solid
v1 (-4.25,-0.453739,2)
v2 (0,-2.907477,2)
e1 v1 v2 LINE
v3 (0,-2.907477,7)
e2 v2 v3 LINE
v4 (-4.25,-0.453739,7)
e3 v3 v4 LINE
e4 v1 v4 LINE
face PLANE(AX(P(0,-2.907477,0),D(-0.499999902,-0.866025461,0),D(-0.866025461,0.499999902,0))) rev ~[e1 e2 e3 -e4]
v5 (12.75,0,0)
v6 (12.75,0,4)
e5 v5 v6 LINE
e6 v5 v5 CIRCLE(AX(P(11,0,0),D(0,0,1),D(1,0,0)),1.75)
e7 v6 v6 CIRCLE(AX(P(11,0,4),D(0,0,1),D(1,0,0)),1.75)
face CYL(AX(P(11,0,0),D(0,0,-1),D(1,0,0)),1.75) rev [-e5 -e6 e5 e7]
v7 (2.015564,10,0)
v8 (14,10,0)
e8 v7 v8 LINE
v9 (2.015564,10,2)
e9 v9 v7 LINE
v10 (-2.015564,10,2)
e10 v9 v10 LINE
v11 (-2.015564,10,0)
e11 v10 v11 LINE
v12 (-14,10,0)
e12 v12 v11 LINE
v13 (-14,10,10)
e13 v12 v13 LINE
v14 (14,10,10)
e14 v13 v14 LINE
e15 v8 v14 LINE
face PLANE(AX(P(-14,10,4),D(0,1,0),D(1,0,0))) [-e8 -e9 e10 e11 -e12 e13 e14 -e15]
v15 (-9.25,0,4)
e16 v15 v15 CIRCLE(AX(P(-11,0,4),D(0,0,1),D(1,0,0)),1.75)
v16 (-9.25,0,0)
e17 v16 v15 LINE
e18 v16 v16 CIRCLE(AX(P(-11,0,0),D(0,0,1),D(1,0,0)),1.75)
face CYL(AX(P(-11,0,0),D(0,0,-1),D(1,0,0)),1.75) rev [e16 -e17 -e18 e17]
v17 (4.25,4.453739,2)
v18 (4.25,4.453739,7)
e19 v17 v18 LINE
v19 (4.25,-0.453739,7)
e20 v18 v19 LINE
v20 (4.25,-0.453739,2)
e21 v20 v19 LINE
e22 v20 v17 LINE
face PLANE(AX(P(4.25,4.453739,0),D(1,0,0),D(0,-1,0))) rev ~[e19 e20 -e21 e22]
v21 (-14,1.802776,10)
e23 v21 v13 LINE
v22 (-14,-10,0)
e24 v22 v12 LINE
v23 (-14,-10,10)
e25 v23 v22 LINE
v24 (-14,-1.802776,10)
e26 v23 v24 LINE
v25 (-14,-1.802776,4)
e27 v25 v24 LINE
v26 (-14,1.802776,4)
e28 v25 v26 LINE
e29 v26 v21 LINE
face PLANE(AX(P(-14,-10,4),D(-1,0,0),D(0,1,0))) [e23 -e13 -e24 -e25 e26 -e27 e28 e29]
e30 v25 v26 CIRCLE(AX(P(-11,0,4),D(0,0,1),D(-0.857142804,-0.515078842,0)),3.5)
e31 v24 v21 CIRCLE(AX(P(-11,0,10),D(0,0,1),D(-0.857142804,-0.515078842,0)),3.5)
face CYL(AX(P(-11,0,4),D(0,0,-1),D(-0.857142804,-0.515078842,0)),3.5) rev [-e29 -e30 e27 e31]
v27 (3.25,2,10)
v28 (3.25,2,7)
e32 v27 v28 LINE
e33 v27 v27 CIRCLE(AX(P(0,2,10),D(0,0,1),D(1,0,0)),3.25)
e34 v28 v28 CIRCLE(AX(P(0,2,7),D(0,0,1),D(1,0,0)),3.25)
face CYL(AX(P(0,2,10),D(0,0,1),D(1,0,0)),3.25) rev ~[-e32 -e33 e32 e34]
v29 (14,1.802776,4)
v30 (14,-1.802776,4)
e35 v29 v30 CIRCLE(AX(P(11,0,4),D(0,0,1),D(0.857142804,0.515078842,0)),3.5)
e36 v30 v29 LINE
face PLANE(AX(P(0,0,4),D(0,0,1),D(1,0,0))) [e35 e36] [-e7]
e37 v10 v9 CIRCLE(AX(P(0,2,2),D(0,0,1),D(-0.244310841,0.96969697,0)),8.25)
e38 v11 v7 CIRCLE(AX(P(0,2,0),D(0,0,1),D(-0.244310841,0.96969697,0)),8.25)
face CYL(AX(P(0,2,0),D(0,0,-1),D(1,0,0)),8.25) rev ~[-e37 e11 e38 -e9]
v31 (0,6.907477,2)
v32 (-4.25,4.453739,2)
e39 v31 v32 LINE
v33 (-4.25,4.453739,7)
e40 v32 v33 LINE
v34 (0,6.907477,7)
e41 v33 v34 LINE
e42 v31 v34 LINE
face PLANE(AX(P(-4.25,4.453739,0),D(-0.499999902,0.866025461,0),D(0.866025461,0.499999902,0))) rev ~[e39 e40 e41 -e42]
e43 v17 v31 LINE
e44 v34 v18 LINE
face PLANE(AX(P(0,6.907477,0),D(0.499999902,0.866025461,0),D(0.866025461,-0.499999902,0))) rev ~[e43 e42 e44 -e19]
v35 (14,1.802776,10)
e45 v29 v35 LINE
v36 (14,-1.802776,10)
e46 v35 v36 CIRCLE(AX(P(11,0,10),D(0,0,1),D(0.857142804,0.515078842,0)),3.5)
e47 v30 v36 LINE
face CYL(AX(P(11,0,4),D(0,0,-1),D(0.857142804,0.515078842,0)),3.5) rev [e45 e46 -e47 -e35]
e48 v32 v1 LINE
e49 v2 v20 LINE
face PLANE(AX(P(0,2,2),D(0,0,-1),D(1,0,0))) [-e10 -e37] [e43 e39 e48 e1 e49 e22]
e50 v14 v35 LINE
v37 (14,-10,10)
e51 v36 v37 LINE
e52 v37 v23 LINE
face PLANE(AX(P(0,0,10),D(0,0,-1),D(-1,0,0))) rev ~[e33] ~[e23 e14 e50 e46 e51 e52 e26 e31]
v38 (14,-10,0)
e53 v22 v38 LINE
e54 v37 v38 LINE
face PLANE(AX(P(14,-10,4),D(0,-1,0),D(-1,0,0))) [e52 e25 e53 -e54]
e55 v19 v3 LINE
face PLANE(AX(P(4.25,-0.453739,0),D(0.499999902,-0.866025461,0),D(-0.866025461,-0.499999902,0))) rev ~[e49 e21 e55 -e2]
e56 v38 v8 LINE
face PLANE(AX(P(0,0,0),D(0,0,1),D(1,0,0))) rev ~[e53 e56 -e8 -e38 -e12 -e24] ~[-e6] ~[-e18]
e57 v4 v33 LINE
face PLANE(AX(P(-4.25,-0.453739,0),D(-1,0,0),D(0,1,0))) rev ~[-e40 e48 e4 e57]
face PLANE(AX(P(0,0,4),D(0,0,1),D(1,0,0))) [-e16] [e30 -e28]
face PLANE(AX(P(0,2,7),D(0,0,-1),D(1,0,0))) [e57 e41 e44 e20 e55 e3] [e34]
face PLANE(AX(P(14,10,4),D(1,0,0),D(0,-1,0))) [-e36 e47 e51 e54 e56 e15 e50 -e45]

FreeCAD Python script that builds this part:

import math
import FreeCAD as App
import Part
import Sketcher
from FreeCAD import Vector
Q = App.Units.Quantity


def add_polygon(sketch, points):
    """Adds a closed chain of lines whose ends are joined by coincident constraints."""
    first, n = sketch.GeometryCount, len(points)
    for a, b in zip(points, points[1:] + points[:1]):
        sketch.addGeometry(Part.LineSegment(App.Vector(*a, 0), App.Vector(*b, 0)), False)
    for i in range(n):
        sketch.addConstraint(Sketcher.Constraint("Coincident", first + i, 2, first + (i + 1) % n, 1))

doc = App.newDocument("Part")
params = doc.addObject("Spreadsheet::Sheet", "Params")
for row, (alias, value) in enumerate([
    ("sketch1_diameter", "3.5 mm"),
    ("sketch1_width", "28 mm"),
    ("sketch1_height", "20 mm"),
    ("pad1_length", "4 mm"),
    ("sketch2_radius", "3.5 mm"),
    ("sketch2_width", "28 mm"),
    ("pad2_length", "6 mm"),
    ("sketch3_diameter", "6.5 mm"),
    ("pocket1_length", "10 mm"),
    ("pocket2_length", "7 mm"),
    ("sketch5_diameter", "16.5 mm"),
    ("pocket3_length", "2 mm"),
], start=1):
    params.set(f"A{row}", alias)
    params.set(f"B{row}", "=" + value)
    params.setAlias(f"B{row}", alias)

body = doc.addObject("PartDesign::Body", "Body")

sketch1 = body.newObject("Sketcher::SketchObject", "Sketch")
sketch1.AttachmentSupport = (doc.getObject("XY_Plane"), [""])
sketch1.MapMode = "FlatFace"
add_polygon(sketch1, [(-14, 10), (-14, -10), (14, -10), (14, 10)])
sketch1.addGeometry(Part.Circle(Vector(-11, 0, 0), Vector(0, 0, 1), 1.8), False)
sketch1.addGeometry(Part.Circle(Vector(11, 0, 0), Vector(0, 0, 1), 1.8), False)
sketch1.addConstraint(Sketcher.Constraint("Vertical", 0))
sketch1.addConstraint(Sketcher.Constraint("Horizontal", 1))
sketch1.addConstraint(Sketcher.Constraint("Vertical", 2))
sketch1.addConstraint(Sketcher.Constraint("Horizontal", 3))
sketch1.addConstraint(Sketcher.Constraint("Equal", 4, 5))
sketch1.addConstraint(Sketcher.Constraint("Symmetric", 4, 3, 5, 3, -1, 1))
sketch1.addConstraint(Sketcher.Constraint("Symmetric", 0, 2, 2, 2, -1, 1))
sketch1.addConstraint(Sketcher.Constraint("PointOnObject", 4, 3, -1))
sketch1.addConstraint(Sketcher.Constraint("Diameter", 4, 3.5))
sketch1.addConstraint(Sketcher.Constraint("DistanceX", 1, 1, 1, 2, 28.0))
sketch1.addConstraint(Sketcher.Constraint("DistanceY", 0, 2, 0, 1, 20.0))
sketch1.addConstraint(Sketcher.Constraint("DistanceX", 4, 3, -1, 1, 11.0))
sketch1.setExpression("Constraints[12]", "Params.sketch1_diameter")
sketch1.setExpression("Constraints[13]", "Params.sketch1_width")
sketch1.setExpression("Constraints[14]", "Params.sketch1_height")
pad1 = body.newObject("PartDesign::Pad", "Pad")
pad1.Profile = sketch1
pad1.setExpression("Length", "Params.pad1_length")

sketch2 = body.newObject("Sketcher::SketchObject", "Sketch001")
sketch2.AttachmentSupport = (doc.getObject("XY_Plane"), [""])
sketch2.MapMode = "FlatFace"
sketch2.AttachmentOffset = App.Placement(Vector(0, 0, 4), App.Rotation())
sketch2.addGeometry(Part.ArcOfCircle(Part.Circle(Vector(11, 0, 0), Vector(0, 0, 1), 3.5), math.radians(31), math.radians(329)), False)
sketch2.addGeometry(Part.LineSegment(Vector(14, 1.8, 0), Vector(14, 10, 0)), False)
sketch2.addGeometry(Part.LineSegment(Vector(14, 10, 0), Vector(-14, 10, 0)), False)
sketch2.addGeometry(Part.LineSegment(Vector(-14, 10, 0), Vector(-14, 1.8, 0)), False)
sketch2.addGeometry(Part.ArcOfCircle(Part.Circle(Vector(-11, 0, 0), Vector(0, 0, 1), 3.5), math.radians(-149), math.radians(149)), False)
sketch2.addGeometry(Part.LineSegment(Vector(-14, -1.8, 0), Vector(-14, -10, 0)), False)
sketch2.addGeometry(Part.LineSegment(Vector(-14, -10, 0), Vector(14, -10, 0)), False)
sketch2.addGeometry(Part.LineSegment(Vector(14, -10, 0), Vector(14, -1.8, 0)), False)
sketch2.addConstraint(Sketcher.Constraint("Coincident", 0, 1, 1, 1))
sketch2.addConstraint(Sketcher.Constraint("Coincident", 1, 2, 2, 1))
sketch2.addConstraint(Sketcher.Constraint("Coincident", 2, 2, 3, 1))
sketch2.addConstraint(Sketcher.Constraint("Coincident", 3, 2, 4, 2))
sketch2.addConstraint(Sketcher.Constraint("Coincident", 4, 1, 5, 1))
sketch2.addConstraint(Sketcher.Constraint("Coincident", 5, 2, 6, 1))
sketch2.addConstraint(Sketcher.Constraint("Coincident", 6, 2, 7, 1))
sketch2.addConstraint(Sketcher.Constraint("Coincident", 7, 2, 0, 2))
sketch2.addConstraint(Sketcher.Constraint("Vertical", 1))
sketch2.addConstraint(Sketcher.Constraint("Horizontal", 2))
sketch2.addConstraint(Sketcher.Constraint("Vertical", 3))
sketch2.addConstraint(Sketcher.Constraint("Vertical", 5))
sketch2.addConstraint(Sketcher.Constraint("Horizontal", 6))
sketch2.addConstraint(Sketcher.Constraint("Vertical", 7))
sketch2.addConstraint(Sketcher.Constraint("Equal", 0, 4))
sketch2.addConstraint(Sketcher.Constraint("Symmetric", 0, 3, 4, 3, -1, 1))
sketch2.addConstraint(Sketcher.Constraint("Symmetric", 1, 2, 5, 2, -1, 1))
sketch2.addConstraint(Sketcher.Constraint("Symmetric", 0, 1, 3, 2, -2))
sketch2.addConstraint(Sketcher.Constraint("Horizontal", 4, 1, 7, 2))
sketch2.addConstraint(Sketcher.Constraint("Radius", 0, 3.5))
sketch2.addConstraint(Sketcher.Constraint("DistanceX", 2, 2, 2, 1, 28.0))
sketch2.addConstraint(Sketcher.Constraint("DistanceX", -1, 1, 0, 3, 11.0))
sketch2.addConstraint(Sketcher.Constraint("DistanceY", -1, 1, 1, 2, 10.0))
sketch2.setExpression("Constraints[19]", "Params.sketch2_radius")
sketch2.setExpression("Constraints[20]", "Params.sketch2_width")
pad2 = body.newObject("PartDesign::Pad", "Pad001")
pad2.Profile = sketch2
pad2.setExpression("Length", "Params.pad2_length")

sketch3 = body.newObject("Sketcher::SketchObject", "Sketch002")
sketch3.AttachmentSupport = (doc.getObject("XY_Plane"), [""])
sketch3.MapMode = "FlatFace"
sketch3.AttachmentOffset = App.Placement(Vector(0, 0, 10), App.Rotation())
sketch3.addGeometry(Part.Circle(Vector(0, 2, 0), Vector(0, 0, 1), 3.2), False)
sketch3.addConstraint(Sketcher.Constraint("PointOnObject", 0, 3, -2))
sketch3.addConstraint(Sketcher.Constraint("Diameter", 0, 6.5))
sketch3.addConstraint(Sketcher.Constraint("DistanceY", -1, 1, 0, 3, 2.0))
sketch3.setExpression("Constraints[1]", "Params.sketch3_diameter")
pocket1 = body.newObject("PartDesign::Pocket", "Pocket")
pocket1.Profile = sketch3
pocket1.setExpression("Length", "Params.pocket1_length")

sketch4 = body.newObject("Sketcher::SketchObject", "Sketch003")
sketch4.AttachmentSupport = (doc.getObject("XY_Plane"), [""])
sketch4.MapMode = "FlatFace"
add_polygon(sketch4, [(4.2, 4.5), (4.2, -0.5), (0, -2.9), (-4.2, -0.5), (-4.2, 4.5), (0, 6.9)])
sketch4.addConstraint(Sketcher.Constraint("Vertical", 0))
sketch4.addConstraint(Sketcher.Constraint("Vertical", 3))
sketch4.addConstraint(Sketcher.Constraint("Symmetric", 0, 2, 2, 2, -2))
sketch4.addConstraint(Sketcher.Constraint("PointOnObject", 1, 2, -2))
sketch4.addConstraint(Sketcher.Constraint("PointOnObject", 4, 2, -2))
sketch4.addConstraint(Sketcher.Constraint("Parallel", 1, 4))
sketch4.addConstraint(Sketcher.Constraint("Parallel", 2, 5))
sketch4.addConstraint(Sketcher.Constraint("Angle", 1, Q("-150.000007 deg")))
sketch4.addConstraint(Sketcher.Constraint("DistanceX", 2, 2, 0, 2, 8.5))
sketch4.addConstraint(Sketcher.Constraint("DistanceY", 0, 2, 0, 1, 4.907478))
sketch4.addConstraint(Sketcher.Constraint("DistanceY", 0, 2, -1, 1, 0.453739))
pocket2 = body.newObject("PartDesign::Pocket", "Pocket001")
pocket2.Profile = sketch4
pocket2.setExpression("Length", "Params.pocket2_length")
pocket2.Reversed = True

sketch5 = body.newObject("Sketcher::SketchObject", "Sketch004")
sketch5.AttachmentSupport = (doc.getObject("XY_Plane"), [""])
sketch5.MapMode = "FlatFace"
sketch5.addGeometry(Part.Circle(Vector(0, 2, 0), Vector(0, 0, 1), 8), False)
sketch5.addConstraint(Sketcher.Constraint("PointOnObject", 0, 3, -2))
sketch5.addConstraint(Sketcher.Constraint("Diameter", 0, 16.5))
sketch5.addConstraint(Sketcher.Constraint("DistanceY", -1, 1, 0, 3, 2.0))
sketch5.setExpression("Constraints[1]", "Params.sketch5_diameter")
pocket3 = body.newObject("PartDesign::Pocket", "Pocket002")
pocket3.Profile = sketch5
pocket3.setExpression("Length", "Params.pocket3_length")
pocket3.Reversed = True

doc.recompute()
